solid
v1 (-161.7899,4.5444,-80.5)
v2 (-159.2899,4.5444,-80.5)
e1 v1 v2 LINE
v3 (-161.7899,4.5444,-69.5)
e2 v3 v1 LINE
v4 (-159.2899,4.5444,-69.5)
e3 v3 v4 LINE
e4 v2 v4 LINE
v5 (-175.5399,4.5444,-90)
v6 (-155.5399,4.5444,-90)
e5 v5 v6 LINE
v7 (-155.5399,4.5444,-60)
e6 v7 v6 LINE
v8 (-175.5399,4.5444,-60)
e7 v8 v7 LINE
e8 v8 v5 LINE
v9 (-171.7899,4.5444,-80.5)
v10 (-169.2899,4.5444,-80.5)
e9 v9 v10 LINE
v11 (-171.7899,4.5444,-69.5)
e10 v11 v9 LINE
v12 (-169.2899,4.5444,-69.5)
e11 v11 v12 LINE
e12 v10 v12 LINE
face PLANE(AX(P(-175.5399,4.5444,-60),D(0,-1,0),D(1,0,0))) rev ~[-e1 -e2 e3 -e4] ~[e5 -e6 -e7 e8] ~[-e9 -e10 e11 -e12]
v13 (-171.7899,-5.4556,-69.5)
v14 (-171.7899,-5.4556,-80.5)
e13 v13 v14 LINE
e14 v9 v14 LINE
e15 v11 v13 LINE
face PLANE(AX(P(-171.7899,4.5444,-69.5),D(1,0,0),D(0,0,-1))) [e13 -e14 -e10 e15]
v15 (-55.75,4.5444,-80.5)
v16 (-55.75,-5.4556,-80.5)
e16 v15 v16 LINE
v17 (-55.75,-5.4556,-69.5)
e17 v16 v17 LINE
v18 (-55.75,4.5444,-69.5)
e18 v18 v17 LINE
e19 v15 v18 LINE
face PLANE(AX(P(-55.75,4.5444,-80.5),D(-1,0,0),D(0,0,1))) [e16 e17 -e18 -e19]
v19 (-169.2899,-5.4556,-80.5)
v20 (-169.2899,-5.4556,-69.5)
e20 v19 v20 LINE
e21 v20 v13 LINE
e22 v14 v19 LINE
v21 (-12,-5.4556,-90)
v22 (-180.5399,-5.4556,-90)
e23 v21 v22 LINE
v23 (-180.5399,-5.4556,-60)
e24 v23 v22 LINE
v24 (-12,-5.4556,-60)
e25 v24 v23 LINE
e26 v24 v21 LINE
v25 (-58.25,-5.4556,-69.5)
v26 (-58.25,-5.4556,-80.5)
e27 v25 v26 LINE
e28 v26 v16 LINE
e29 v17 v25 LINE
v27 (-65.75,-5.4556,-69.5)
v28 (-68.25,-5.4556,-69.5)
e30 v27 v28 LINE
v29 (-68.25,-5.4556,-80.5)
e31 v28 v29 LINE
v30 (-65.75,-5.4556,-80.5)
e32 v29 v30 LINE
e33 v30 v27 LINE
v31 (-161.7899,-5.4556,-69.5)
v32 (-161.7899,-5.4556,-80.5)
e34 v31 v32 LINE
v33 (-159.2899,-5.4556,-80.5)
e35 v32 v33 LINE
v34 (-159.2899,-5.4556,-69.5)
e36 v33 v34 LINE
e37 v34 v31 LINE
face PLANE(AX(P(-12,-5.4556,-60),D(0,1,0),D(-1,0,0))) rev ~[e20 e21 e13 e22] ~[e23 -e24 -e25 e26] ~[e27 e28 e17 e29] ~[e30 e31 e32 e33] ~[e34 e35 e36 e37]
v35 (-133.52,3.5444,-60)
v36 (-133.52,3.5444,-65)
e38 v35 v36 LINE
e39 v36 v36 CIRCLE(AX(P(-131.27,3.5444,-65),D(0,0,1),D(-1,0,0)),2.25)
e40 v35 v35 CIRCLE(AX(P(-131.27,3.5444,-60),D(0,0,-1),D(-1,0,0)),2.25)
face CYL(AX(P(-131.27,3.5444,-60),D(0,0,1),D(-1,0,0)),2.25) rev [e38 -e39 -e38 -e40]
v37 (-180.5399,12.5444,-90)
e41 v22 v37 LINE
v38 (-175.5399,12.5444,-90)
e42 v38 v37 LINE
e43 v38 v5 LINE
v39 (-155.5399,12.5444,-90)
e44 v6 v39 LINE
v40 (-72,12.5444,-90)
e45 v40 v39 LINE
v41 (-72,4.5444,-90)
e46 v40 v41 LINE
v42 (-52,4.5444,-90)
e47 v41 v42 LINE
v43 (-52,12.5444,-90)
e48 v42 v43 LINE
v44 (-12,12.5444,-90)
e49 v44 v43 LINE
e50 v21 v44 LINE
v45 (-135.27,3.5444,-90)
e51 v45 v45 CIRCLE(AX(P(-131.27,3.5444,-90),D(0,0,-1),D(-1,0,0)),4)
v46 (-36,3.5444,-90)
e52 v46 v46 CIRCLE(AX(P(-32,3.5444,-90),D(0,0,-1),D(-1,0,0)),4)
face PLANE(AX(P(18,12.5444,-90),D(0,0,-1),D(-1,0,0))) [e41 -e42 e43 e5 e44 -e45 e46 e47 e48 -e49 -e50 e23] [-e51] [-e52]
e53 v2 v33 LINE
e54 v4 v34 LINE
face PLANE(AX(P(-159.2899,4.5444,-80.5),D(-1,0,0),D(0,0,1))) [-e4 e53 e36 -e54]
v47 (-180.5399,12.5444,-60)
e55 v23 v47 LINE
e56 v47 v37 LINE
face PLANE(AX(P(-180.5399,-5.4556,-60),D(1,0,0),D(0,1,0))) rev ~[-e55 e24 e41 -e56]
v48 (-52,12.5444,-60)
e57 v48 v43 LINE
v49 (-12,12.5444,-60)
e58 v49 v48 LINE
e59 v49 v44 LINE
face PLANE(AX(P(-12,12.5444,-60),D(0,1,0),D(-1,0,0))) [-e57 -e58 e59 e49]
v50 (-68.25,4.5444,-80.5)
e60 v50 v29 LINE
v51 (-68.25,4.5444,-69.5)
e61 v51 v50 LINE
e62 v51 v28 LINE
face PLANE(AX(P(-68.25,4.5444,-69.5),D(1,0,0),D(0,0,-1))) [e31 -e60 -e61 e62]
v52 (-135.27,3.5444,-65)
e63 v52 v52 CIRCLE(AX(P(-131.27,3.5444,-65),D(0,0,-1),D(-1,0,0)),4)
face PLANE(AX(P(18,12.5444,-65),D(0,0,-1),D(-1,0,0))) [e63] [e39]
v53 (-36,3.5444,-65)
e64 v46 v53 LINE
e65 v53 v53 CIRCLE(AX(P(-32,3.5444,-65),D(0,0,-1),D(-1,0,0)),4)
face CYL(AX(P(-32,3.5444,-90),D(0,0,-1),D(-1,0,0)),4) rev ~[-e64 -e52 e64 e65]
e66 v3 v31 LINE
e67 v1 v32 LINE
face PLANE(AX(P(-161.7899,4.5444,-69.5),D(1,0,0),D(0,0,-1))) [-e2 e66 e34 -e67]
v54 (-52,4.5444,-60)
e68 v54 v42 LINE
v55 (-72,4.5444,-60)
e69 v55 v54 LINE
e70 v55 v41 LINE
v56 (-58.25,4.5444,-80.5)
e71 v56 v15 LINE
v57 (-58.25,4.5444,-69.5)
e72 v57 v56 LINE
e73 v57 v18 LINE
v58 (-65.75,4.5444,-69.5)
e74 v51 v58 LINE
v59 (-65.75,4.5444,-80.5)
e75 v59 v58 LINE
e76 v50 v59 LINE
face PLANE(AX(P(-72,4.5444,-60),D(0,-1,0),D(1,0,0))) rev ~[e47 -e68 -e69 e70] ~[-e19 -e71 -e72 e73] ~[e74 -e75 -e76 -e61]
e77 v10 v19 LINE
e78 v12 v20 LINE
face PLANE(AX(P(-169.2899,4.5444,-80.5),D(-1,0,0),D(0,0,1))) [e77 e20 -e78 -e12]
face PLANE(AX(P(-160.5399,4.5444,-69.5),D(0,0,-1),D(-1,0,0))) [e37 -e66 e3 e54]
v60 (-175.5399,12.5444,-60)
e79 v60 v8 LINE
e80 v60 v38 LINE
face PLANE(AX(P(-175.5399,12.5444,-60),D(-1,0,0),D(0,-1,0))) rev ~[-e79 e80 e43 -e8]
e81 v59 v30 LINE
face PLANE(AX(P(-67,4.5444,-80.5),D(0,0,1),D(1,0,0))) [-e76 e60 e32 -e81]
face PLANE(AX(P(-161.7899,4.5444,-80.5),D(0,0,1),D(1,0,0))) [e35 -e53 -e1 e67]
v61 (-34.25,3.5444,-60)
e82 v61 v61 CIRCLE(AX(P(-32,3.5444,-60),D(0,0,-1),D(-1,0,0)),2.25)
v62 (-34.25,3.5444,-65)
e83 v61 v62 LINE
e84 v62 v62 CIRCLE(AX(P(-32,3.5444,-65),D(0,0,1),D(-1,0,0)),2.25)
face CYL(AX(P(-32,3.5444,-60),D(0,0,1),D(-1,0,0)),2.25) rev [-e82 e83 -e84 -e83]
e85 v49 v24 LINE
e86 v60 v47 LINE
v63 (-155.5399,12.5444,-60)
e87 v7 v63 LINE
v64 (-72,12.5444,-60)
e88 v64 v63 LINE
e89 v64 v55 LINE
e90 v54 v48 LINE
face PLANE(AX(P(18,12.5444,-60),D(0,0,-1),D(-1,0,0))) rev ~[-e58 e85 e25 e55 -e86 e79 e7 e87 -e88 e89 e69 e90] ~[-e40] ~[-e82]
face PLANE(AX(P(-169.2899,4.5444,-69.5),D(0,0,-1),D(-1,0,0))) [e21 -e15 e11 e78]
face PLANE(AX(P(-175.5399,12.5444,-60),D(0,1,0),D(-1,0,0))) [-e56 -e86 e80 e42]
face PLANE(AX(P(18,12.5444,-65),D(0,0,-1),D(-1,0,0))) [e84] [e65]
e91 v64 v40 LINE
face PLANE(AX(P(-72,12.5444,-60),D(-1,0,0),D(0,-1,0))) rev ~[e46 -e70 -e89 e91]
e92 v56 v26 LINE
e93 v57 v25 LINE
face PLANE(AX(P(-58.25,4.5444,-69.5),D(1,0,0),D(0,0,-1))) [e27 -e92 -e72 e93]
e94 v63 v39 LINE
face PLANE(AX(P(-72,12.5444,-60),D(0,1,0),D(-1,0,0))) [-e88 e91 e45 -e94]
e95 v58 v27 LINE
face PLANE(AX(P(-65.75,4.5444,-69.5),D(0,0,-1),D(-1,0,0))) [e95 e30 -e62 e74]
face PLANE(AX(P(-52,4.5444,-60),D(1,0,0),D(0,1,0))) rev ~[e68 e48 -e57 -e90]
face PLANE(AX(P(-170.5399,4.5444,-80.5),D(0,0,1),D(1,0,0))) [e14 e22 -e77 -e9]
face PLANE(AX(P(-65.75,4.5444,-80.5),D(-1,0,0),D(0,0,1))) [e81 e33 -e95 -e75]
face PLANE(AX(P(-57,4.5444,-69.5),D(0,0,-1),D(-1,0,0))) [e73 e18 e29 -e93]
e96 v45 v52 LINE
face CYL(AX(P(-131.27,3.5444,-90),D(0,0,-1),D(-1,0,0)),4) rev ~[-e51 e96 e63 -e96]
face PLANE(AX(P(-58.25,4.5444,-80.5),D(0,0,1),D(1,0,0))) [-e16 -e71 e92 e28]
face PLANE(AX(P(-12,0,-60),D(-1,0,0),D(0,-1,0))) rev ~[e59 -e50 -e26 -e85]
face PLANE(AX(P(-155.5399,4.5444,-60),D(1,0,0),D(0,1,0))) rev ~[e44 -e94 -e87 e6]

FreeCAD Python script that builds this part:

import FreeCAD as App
import Part
import Sketcher
from FreeCAD import Vector


def add_polygon(sketch, points):
    """Adds a closed chain of lines whose ends are joined by coincident constraints."""
    first, n = sketch.GeometryCount, len(points)
    for a, b in zip(points, points[1:] + points[:1]):
        sketch.addGeometry(Part.LineSegment(App.Vector(*a, 0), App.Vector(*b, 0)), False)
    for i in range(n):
        sketch.addConstraint(Sketcher.Constraint("Coincident", first + i, 2, first + (i + 1) % n, 1))

doc = App.newDocument("Part")
params = doc.addObject("Spreadsheet::Sheet", "Params")
for row, (alias, value) in enumerate([
    ("sketch1_height", "18 mm"),
    ("sketch1_height2", "8 mm"),
    ("sketch1_diameter", "4.5 mm"),
    ("sketch1_width", "5 mm"),
    ("sketch1_width2", "20 mm"),
    ("pad1_length", "30 mm"),
    ("sketch2_diameter", "8 mm"),
    ("pocket1_length", "25 mm"),
    ("sketch3_height", "11 mm"),
    ("sketch3_width", "2.5 mm"),
], start=1):
    params.set(f"A{row}", alias)
    params.set(f"B{row}", "=" + value)
    params.setAlias(f"B{row}", alias)

body = doc.addObject("PartDesign::Body", "Body")

# Sketch on XY plane
sketch1 = body.newObject("Sketcher::SketchObject", "Sketch")
sketch1.AttachmentSupport = (doc.getObject("XY_Plane"), [""])
sketch1.MapMode = "FlatFace"
sketch1.AttachmentOffset = App.Placement(Vector(0, 0, -60), App.Rotation())
add_polygon(sketch1, [(-12, 12.5), (-12, -5.5), (-180.5, -5.5), (-180.5, 12.5), (-175.5, 12.5), (-175.5, 4.5), (-155.5, 4.5), (-155.5, 12.5), (-72, 12.5), (-72, 4.5), (-52, 4.5), (-52, 12.5)])  # lines 0-11
sketch1.addGeometry(Part.Circle(Vector(-32, 3.5, 0), Vector(0, 0, 1), 2.2), False)  # 12
sketch1.addGeometry(Part.Circle(Vector(-131.3, 3.5, 0), Vector(0, 0, 1), 2.2), False)  # 13
sketch1.addConstraint([
    Sketcher.Constraint("Vertical", 0),
    Sketcher.Constraint("Horizontal", 1),
    Sketcher.Constraint("Vertical", 2),
    Sketcher.Constraint("Horizontal", 3),
    Sketcher.Constraint("Vertical", 4),
    Sketcher.Constraint("Horizontal", 5),
    Sketcher.Constraint("Vertical", 6),
    Sketcher.Constraint("Horizontal", 7),
    Sketcher.Constraint("Vertical", 8),
    Sketcher.Constraint("Horizontal", 9),
    Sketcher.Constraint("Vertical", 10),
    Sketcher.Constraint("Horizontal", 11),
    Sketcher.Constraint("Equal", 12, 13),
    Sketcher.Constraint("Horizontal", 12, 3, 13, 3),
    Sketcher.Constraint("Horizontal", 3, 2, 6, 2),
    Sketcher.Constraint("Horizontal", 5, 2, 8, 2),
    Sketcher.Constraint("Horizontal", 7, 2, 10, 2),
    Sketcher.Constraint("Equal", 5, 9),
    Sketcher.Constraint("DistanceY", 0, 2, 0, 1, 18.0),
    Sketcher.Constraint("DistanceY", 4, 2, 4, 1, 8.0),
    Sketcher.Constraint("Diameter", 12, 4.5),
    Sketcher.Constraint("DistanceX", 3, 1, 3, 2, 5.0),
    Sketcher.Constraint("DistanceX", 5, 1, 5, 2, 20.0),
    Sketcher.Constraint("DistanceX", 11, 1, 11, 2, 40.0),
    Sketcher.Constraint("DistanceX", 12, 3, -1, 1, 32.0),
    Sketcher.Constraint("DistanceX", 0, 2, -1, 1, 12.0),
    Sketcher.Constraint("DistanceY", 0, 2, 12, 3, 9.0),
    Sketcher.Constraint("DistanceX", 1, 2, 1, 1, 168.54),
    Sketcher.Constraint("DistanceX", 13, 3, -1, 1, 131.27),
    Sketcher.Constraint("DistanceY", -1, 1, 12, 3, 3.5444),
])
sketch1.setExpression("Constraints[30]", "Params.sketch1_height")
sketch1.setExpression("Constraints[31]", "Params.sketch1_height2")
sketch1.setExpression("Constraints[32]", "Params.sketch1_diameter")
sketch1.setExpression("Constraints[33]", "Params.sketch1_width")
sketch1.setExpression("Constraints[34]", "Params.sketch1_width2")
pad1 = body.newObject("PartDesign::Pad", "Pad")
pad1.Profile = sketch1
pad1.setExpression("Length", "Params.pad1_length")
pad1.Reversed = True

# Sketch on XY plane
sketch2 = body.newObject("Sketcher::SketchObject", "Sketch001")
sketch2.AttachmentSupport = (doc.getObject("XY_Plane"), [""])
sketch2.MapMode = "FlatFace"
sketch2.AttachmentOffset = App.Placement(Vector(0, 0, -90), App.Rotation())
sketch2.addGeometry([
    Part.Circle(Vector(-131.3, 3.5, 0), Vector(0, 0, 1), 4),
    Part.Circle(Vector(-32, 3.5, 0), Vector(0, 0, 1), 4),
], False)
sketch2.addConstraint([
    Sketcher.Constraint("Equal", 0, 1),
    Sketcher.Constraint("Horizontal", 0, 3, 1, 3),
    Sketcher.Constraint("Diameter", 0, 8.0),
    Sketcher.Constraint("DistanceX", 1, 3, -1, 1, 32.0),
    Sketcher.Constraint("DistanceX", 0, 3, -1, 1, 131.27),
    Sketcher.Constraint("DistanceY", -1, 1, 0, 3, 3.5444),
])
sketch2.setExpression("Constraints[2]", "Params.sketch2_diameter")
pocket1 = body.newObject("PartDesign::Pocket", "Pocket")
pocket1.Profile = sketch2
pocket1.setExpression("Length", "Params.pocket1_length")
pocket1.Reversed = True

# Sketch on XZ plane
sketch3 = body.newObject("Sketcher::SketchObject", "Sketch002")
sketch3.AttachmentSupport = (doc.getObject("XZ_Plane"), [""])
sketch3.MapMode = "FlatFace"
sketch3.AttachmentOffset = App.Placement(Vector(0, 0, -4.5444), App.Rotation())
add_polygon(sketch3, [(-169.3, -80.5), (-171.8, -80.5), (-171.8, -69.5), (-169.3, -69.5)])  # lines 0-3
add_polygon(sketch3, [(-161.8, -80.5), (-161.8, -69.5), (-159.3, -69.5), (-159.3, -80.5)])  # lines 4-7
add_polygon(sketch3, [(-65.8, -80.5), (-68.2, -80.5), (-68.2, -69.5), (-65.8, -69.5)])  # lines 8-11
add_polygon(sketch3, [(-58.2, -80.5), (-58.2, -69.5), (-55.8, -69.5), (-55.8, -80.5)])  # lines 12-15
sketch3.addConstraint([
    Sketcher.Constraint("Horizontal", 0),
    Sketcher.Constraint("Vertical", 1),
    Sketcher.Constraint("Horizontal", 2),
    Sketcher.Constraint("Vertical", 3),
    Sketcher.Constraint("Vertical", 4),
    Sketcher.Constraint("Horizontal", 5),
    Sketcher.Constraint("Vertical", 6),
    Sketcher.Constraint("Horizontal", 7),
    Sketcher.Constraint("Horizontal", 8),
    Sketcher.Constraint("Vertical", 9),
    Sketcher.Constraint("Horizontal", 10),
    Sketcher.Constraint("Vertical", 11),
    Sketcher.Constraint("Vertical", 12),
    Sketcher.Constraint("Horizontal", 13),
    Sketcher.Constraint("Vertical", 14),
    Sketcher.Constraint("Horizontal", 15),
    Sketcher.Constraint("Horizontal", 2, 2, 4, 2),
    Sketcher.Constraint("Horizontal", 3, 2, 6, 2),
    Sketcher.Constraint("Horizontal", 7, 2, 8, 2),
    Sketcher.Constraint("Horizontal", 5, 2, 9, 2),
    Sketcher.Constraint("Horizontal", 10, 2, 12, 2),
    Sketcher.Constraint("Horizontal", 11, 2, 14, 2),
    Sketcher.Constraint("Equal", 2, 5),
    Sketcher.Constraint("Equal", 7, 8),
    Sketcher.Constraint("Equal", 10, 13),
    Sketcher.Constraint("DistanceY", 1, 1, 1, 2, 11.0),
    Sketcher.Constraint("DistanceX", 0, 2, 0, 1, 2.5),
    Sketcher.Constraint("DistanceX", 1, 2, 4, 2, 10.0),
    Sketcher.Constraint("DistanceX", 9, 2, 12, 2, 10.0),
    Sketcher.Constraint("DistanceY", 0, 2, -1, 1, 80.5),
    Sketcher.Constraint("DistanceX", 0, 2, -1, 1, 171.79),
    Sketcher.Constraint("DistanceX", 8, 2, -1, 1, 68.25),
])
sketch3.setExpression("Constraints[41]", "Params.sketch3_height")
sketch3.setExpression("Constraints[42]", "Params.sketch3_width")
pocket2 = body.newObject("PartDesign::Pocket", "Pocket001")
pocket2.Profile = sketch3
pocket2.Type = "ThroughAll"
pocket2.Reversed = True

doc.recompute()
